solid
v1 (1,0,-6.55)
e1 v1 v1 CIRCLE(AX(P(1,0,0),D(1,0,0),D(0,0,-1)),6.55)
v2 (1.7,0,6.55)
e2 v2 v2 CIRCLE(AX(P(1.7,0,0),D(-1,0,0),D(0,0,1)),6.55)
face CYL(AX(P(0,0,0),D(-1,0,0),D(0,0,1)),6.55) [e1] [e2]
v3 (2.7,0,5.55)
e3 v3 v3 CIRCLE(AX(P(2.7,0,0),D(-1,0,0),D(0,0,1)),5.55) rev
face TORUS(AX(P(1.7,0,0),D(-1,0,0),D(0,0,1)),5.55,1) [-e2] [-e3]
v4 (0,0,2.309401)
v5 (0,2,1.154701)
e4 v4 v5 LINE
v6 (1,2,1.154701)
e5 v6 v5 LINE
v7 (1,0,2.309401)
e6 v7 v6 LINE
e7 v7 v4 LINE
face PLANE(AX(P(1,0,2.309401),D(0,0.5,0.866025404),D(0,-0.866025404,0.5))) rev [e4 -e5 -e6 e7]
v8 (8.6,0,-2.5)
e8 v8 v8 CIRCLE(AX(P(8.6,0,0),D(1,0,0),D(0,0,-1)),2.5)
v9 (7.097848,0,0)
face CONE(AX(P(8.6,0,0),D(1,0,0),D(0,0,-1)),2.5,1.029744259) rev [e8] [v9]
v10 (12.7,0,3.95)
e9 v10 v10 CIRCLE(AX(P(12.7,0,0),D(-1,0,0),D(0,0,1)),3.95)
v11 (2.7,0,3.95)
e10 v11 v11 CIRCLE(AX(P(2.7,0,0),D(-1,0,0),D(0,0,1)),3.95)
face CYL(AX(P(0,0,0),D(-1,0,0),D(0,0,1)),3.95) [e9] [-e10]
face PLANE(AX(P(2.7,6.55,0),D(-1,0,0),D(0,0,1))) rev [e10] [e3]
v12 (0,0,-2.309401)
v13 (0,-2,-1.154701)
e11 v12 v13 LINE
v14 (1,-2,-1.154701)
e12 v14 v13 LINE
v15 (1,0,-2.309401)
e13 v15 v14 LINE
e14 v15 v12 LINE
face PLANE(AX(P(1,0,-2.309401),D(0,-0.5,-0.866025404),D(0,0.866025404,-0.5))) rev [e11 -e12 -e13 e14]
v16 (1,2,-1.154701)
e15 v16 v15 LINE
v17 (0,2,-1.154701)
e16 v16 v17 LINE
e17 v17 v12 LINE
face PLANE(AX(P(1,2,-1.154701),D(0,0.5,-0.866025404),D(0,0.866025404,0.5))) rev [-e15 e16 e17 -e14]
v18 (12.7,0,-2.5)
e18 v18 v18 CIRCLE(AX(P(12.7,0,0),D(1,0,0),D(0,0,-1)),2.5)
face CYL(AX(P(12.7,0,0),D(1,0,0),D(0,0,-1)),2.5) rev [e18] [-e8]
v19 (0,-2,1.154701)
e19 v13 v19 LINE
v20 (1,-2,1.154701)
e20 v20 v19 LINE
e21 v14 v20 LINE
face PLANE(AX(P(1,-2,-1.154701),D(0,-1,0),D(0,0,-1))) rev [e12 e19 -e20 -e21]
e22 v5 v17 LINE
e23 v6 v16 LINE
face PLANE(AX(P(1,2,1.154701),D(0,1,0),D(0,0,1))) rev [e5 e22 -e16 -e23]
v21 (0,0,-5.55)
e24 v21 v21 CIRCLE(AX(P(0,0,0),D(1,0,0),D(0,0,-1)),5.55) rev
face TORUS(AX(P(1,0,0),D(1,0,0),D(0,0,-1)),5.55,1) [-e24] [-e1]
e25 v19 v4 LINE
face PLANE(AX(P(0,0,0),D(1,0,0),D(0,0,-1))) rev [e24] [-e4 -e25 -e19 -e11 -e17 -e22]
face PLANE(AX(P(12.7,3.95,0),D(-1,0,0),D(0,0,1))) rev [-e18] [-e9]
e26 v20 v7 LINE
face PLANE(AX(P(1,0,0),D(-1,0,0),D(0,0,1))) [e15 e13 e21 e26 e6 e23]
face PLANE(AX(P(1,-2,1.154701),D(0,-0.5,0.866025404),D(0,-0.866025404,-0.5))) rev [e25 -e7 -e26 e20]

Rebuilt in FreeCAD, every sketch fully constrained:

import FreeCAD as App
import Part
import Sketcher
Q = App.Units.Quantity


def edges_at(feature, points):
    """Names of the edges that pass closest to the given points."""
    edges = feature.Shape.Edges
    near = lambda p: min(range(len(edges)), key=lambda i: edges[i].distToShape(Part.Vertex(*p))[0])
    return sorted({f"Edge{near(p) + 1}" for p in points})

doc = App.newDocument("Part")
params = doc.addObject("Spreadsheet::Sheet", "Params")
for row, (alias, value) in enumerate([
    ("sketch1_width", "10 mm"),
    ("sketch1_width2", "12.7 mm"),
    ("sketch1_height", "2.6 mm"),
    ("sketch1_height2", "6.55 mm"),
    ("revolution_angle", "360 deg"),
    ("fillet_radius", "1 mm"),
    ("pocket1_length", "1 mm"),
    ("sketch3_diameter", "5 mm"),
    ("hole_diameter", "5 mm"),
    ("hole_depth", "4.1 mm"),
], start=1):
    params.set(f"A{row}", alias)
    params.set(f"B{row}", "=" + value)
    params.setAlias(f"B{row}", alias)

body = doc.addObject("PartDesign::Body", "Body")

# Sketch on XY plane
sketch1 = body.newObject("Sketcher::SketchObject", "Sketch")
sketch1.AttachmentSupport = (doc.getObject("XY_Plane"), [""])
sketch1.MapMode = "FlatFace"
sketch1.addGeometry([
    Part.LineSegment(App.Vector(0, 6.5, 0), App.Vector(0, 0, 0)),  # 0
    Part.LineSegment(App.Vector(0, 0, 0), App.Vector(12.7, 0, 0)),  # 1
    Part.LineSegment(App.Vector(12.7, 0, 0), App.Vector(12.7, 4, 0)),  # 2
    Part.LineSegment(App.Vector(12.7, 4, 0), App.Vector(2.7, 4, 0)),  # 3
    Part.LineSegment(App.Vector(2.7, 4, 0), App.Vector(2.7, 6.5, 0)),  # 4
    Part.LineSegment(App.Vector(2.7, 6.5, 0), App.Vector(0, 6.5, 0)),  # 5
], False)
sketch1.addConstraint([
    Sketcher.Constraint("Coincident", 0, 2, 1, 1),
    Sketcher.Constraint("Coincident", 1, 2, 2, 1),
    Sketcher.Constraint("Coincident", 2, 2, 3, 1),
    Sketcher.Constraint("Coincident", 3, 2, 4, 1),
    Sketcher.Constraint("Coincident", 4, 2, 5, 1),
    Sketcher.Constraint("Coincident", 5, 2, 0, 1),
    Sketcher.Constraint("Vertical", 0),
    Sketcher.Constraint("Horizontal", 1),
    Sketcher.Constraint("Vertical", 2),
    Sketcher.Constraint("Horizontal", 3),
    Sketcher.Constraint("Vertical", 4),
    Sketcher.Constraint("Horizontal", 5),
    Sketcher.Constraint("Coincident", 0, 2, -1, 1),
    Sketcher.Constraint("DistanceX", 3, 2, 3, 1, Q("10 mm")),
    Sketcher.Constraint("DistanceX", 1, 1, 1, 2, Q("12.7 mm")),
    Sketcher.Constraint("DistanceY", 4, 1, 4, 2, Q("2.6 mm")),
    Sketcher.Constraint("DistanceY", 0, 2, 0, 1, Q("6.55 mm")),
])
sketch1.setExpression("Constraints[13]", "Params.sketch1_width")
sketch1.setExpression("Constraints[14]", "Params.sketch1_width2")
sketch1.setExpression("Constraints[15]", "Params.sketch1_height")
sketch1.setExpression("Constraints[16]", "Params.sketch1_height2")
revolution = body.newObject("PartDesign::Revolution", "Revolution")
revolution.Profile = sketch1
revolution.ReferenceAxis = (sketch1, ["H_Axis"])
revolution.setExpression("Angle", "Params.revolution_angle")
doc.recompute()

fillet = body.newObject("PartDesign::Fillet", "Fillet")
fillet.Base = (revolution, edges_at(revolution, [(2.7, -6.55, 0), (0, -6.55, 0)]))
fillet.setExpression("Radius", "Params.fillet_radius")

# Sketch on YZ plane
sketch2 = body.newObject("Sketcher::SketchObject", "Sketch001")
sketch2.AttachmentSupport = (doc.getObject("YZ_Plane"), [""])
sketch2.MapMode = "FlatFace"
sketch2.addGeometry([
    Part.LineSegment(App.Vector(2, 1.2, 0), App.Vector(2, -1.2, 0)),  # 0
    Part.LineSegment(App.Vector(2, -1.2, 0), App.Vector(0, -2.3, 0)),  # 1
    Part.LineSegment(App.Vector(0, -2.3, 0), App.Vector(-2, -1.2, 0)),  # 2
    Part.LineSegment(App.Vector(-2, -1.2, 0), App.Vector(-2, 1.2, 0)),  # 3
    Part.LineSegment(App.Vector(-2, 1.2, 0), App.Vector(0, 2.3, 0)),  # 4
    Part.LineSegment(App.Vector(0, 2.3, 0), App.Vector(2, 1.2, 0)),  # 5
], False)
sketch2.addConstraint([
    Sketcher.Constraint("Coincident", 0, 2, 1, 1),
    Sketcher.Constraint("Coincident", 1, 2, 2, 1),
    Sketcher.Constraint("Coincident", 2, 2, 3, 1),
    Sketcher.Constraint("Coincident", 3, 2, 4, 1),
    Sketcher.Constraint("Coincident", 4, 2, 5, 1),
    Sketcher.Constraint("Coincident", 5, 2, 0, 1),
    Sketcher.Constraint("Vertical", 0),
    Sketcher.Constraint("Vertical", 3),
    Sketcher.Constraint("Symmetric", 0, 2, 3, 2, -1, 1),
    Sketcher.Constraint("Symmetric", 1, 2, 4, 2, -1, 1),
    Sketcher.Constraint("PointOnObject", 1, 2, -2),
    Sketcher.Constraint("Parallel", 2, 5),
    Sketcher.Constraint("Horizontal", 0, 2, 2, 2),
    Sketcher.Constraint("Angle", 1, Q("-150 deg")),
    Sketcher.Constraint("DistanceX", -1, 1, 0, 2, Q("2 mm")),
    Sketcher.Constraint("DistanceY", 0, 2, 0, 1, Q("2.309401 mm")),
])
pocket1 = body.newObject("PartDesign::Pocket", "Pocket")
pocket1.Profile = sketch2
pocket1.setExpression("Length", "Params.pocket1_length")
pocket1.Reversed = True

# Sketch on YZ plane
sketch3 = body.newObject("Sketcher::SketchObject", "Sketch002")
sketch3.AttachmentSupport = (doc.getObject("YZ_Plane"), [""])
sketch3.MapMode = "FlatFace"
sketch3.AttachmentOffset = App.Placement(App.Vector(0, 0, 12.7), App.Rotation())
sketch3.addGeometry(Part.Circle(App.Vector(0, 0, 0), App.Vector(0, 0, 1), 2.5), False)
sketch3.addConstraint([
    Sketcher.Constraint("Coincident", 0, 3, -1, 1),
    Sketcher.Constraint("Diameter", 0, Q("5 mm")),
])
sketch3.setExpression("Constraints[1]", "Params.sketch3_diameter")
doc.recompute()
hole = body.newObject("PartDesign::Hole", "Hole")
hole.Profile = sketch3
hole.ThreadType = "None"
hole.setExpression("Diameter", "Params.hole_diameter")
hole.DepthType = "Dimension"
hole.setExpression("Depth", "Params.hole_depth")
hole.DrillPoint = "Angled"
hole.DrillPointAngle = 118

doc.recompute()
